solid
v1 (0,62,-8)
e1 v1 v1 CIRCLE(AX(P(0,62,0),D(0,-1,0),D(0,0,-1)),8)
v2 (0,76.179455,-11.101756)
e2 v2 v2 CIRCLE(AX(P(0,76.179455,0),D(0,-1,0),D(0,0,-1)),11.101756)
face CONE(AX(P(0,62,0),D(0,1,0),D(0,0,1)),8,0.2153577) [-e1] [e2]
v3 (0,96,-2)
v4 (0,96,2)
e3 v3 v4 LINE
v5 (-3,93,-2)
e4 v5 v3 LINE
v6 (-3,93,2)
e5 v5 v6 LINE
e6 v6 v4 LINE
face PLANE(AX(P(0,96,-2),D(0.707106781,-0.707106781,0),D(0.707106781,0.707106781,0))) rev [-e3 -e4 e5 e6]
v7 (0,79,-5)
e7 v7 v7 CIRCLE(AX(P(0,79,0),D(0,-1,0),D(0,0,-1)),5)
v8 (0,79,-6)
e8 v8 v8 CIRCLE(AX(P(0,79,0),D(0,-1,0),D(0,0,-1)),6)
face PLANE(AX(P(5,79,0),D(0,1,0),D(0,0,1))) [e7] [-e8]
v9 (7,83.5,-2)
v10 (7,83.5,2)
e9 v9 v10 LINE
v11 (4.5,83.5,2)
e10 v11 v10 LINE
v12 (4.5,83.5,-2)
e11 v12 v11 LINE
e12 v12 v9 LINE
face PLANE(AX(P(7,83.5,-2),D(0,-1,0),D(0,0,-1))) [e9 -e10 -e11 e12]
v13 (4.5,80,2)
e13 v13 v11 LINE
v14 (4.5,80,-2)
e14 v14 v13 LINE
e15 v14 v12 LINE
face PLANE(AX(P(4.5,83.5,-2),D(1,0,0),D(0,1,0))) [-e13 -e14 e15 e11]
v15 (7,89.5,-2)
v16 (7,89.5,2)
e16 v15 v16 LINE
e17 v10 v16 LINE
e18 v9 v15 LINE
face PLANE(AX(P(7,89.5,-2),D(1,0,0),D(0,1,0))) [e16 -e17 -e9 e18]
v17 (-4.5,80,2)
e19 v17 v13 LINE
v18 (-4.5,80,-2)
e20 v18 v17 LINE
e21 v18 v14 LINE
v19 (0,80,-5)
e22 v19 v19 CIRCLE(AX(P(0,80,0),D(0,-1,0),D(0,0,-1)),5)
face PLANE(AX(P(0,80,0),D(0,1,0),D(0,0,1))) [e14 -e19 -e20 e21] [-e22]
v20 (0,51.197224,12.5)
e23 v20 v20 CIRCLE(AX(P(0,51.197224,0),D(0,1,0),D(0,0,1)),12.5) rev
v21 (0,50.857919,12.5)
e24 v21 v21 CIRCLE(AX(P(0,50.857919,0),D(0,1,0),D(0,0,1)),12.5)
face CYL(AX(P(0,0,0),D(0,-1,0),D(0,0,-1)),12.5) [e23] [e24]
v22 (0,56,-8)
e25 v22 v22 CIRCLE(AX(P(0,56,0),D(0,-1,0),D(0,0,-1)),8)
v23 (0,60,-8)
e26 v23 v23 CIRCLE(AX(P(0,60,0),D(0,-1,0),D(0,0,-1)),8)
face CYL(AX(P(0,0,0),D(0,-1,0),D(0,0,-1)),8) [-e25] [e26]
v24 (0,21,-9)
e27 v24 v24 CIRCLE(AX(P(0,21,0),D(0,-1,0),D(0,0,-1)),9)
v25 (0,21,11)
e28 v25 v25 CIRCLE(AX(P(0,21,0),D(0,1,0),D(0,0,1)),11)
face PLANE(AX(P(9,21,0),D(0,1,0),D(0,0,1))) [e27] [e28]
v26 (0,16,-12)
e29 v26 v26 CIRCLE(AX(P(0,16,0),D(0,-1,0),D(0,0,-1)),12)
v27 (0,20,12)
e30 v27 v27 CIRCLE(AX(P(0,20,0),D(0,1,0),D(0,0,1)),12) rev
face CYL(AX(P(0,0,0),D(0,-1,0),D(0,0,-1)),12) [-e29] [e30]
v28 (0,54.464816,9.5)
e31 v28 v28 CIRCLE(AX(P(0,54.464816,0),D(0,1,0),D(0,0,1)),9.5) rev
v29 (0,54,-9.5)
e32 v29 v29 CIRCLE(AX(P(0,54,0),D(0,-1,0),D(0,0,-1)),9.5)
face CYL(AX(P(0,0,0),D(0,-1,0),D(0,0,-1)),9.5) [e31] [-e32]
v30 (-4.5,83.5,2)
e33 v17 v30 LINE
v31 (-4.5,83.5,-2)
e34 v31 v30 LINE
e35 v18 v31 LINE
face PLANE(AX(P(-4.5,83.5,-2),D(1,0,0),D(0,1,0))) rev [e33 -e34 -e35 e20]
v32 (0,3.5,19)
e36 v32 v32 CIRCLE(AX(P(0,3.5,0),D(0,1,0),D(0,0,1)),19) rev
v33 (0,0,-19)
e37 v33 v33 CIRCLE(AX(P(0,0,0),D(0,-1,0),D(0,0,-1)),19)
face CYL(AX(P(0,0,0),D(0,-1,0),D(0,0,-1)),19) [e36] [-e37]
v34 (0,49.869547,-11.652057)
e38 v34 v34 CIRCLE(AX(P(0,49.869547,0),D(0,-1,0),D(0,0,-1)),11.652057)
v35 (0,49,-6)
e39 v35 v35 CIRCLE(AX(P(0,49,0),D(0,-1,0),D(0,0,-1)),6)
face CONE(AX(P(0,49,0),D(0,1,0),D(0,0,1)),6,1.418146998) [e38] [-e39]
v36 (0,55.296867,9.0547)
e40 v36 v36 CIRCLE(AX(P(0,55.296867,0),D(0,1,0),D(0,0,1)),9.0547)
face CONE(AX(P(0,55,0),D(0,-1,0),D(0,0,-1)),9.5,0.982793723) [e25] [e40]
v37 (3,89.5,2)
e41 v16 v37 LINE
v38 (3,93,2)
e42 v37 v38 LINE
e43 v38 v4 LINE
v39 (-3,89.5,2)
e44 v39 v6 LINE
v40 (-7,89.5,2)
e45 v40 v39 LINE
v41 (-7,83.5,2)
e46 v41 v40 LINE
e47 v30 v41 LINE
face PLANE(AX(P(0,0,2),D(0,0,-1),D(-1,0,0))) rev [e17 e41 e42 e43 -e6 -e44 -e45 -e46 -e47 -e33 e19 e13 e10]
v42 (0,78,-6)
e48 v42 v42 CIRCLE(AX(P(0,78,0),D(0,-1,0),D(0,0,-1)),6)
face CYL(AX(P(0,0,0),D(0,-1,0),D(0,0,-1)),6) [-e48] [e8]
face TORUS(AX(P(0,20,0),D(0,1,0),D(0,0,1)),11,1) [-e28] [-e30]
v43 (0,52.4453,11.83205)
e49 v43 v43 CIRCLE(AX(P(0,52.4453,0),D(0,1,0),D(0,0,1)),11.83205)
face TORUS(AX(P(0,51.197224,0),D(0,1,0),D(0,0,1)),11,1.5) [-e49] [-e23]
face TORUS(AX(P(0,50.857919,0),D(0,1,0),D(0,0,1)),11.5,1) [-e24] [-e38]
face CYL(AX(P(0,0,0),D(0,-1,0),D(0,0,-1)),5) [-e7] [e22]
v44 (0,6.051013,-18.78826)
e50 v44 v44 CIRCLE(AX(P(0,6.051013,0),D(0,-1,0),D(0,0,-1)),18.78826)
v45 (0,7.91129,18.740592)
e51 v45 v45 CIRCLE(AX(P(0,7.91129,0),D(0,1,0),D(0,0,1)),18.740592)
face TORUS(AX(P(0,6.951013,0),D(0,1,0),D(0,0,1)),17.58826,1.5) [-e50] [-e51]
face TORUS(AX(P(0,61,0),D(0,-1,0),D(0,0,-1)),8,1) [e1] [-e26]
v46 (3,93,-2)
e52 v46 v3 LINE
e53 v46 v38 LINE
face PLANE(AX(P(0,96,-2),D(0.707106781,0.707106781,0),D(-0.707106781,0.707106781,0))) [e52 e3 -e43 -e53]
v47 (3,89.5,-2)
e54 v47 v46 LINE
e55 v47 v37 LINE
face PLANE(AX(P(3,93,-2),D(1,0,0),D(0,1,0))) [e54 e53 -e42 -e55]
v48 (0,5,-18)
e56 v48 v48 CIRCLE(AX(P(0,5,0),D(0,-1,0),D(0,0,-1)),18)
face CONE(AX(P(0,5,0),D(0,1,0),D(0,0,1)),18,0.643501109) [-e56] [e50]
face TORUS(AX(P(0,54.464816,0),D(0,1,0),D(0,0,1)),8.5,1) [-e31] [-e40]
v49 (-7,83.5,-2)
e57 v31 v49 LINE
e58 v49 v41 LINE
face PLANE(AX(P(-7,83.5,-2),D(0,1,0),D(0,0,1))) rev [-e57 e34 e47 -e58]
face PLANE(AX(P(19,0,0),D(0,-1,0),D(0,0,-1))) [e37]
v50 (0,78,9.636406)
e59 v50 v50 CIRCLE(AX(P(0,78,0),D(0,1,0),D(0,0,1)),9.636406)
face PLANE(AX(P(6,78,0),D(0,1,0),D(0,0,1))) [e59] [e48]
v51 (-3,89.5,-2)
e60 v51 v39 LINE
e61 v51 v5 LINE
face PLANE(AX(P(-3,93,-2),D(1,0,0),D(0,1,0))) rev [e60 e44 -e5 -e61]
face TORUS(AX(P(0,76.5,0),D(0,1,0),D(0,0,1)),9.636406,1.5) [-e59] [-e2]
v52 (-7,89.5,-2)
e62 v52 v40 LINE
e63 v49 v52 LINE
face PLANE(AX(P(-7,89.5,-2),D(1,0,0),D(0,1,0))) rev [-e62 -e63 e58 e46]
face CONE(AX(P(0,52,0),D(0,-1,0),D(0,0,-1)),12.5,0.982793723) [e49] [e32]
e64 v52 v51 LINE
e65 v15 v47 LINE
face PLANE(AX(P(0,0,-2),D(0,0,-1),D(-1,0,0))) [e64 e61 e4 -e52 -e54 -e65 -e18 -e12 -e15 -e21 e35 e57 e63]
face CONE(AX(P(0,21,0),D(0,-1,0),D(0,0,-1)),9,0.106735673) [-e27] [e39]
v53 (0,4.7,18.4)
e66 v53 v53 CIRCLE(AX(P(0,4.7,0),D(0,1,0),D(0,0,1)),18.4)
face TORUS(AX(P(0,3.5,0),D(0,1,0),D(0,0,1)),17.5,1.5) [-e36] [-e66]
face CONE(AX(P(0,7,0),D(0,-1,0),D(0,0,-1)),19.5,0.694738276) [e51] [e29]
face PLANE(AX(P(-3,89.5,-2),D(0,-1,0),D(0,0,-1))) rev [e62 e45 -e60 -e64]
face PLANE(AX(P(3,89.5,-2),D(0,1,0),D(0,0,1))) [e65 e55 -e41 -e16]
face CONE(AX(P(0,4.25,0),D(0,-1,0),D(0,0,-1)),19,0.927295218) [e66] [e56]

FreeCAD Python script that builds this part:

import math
import FreeCAD as App
import Part
import Sketcher
from FreeCAD import Vector
Q = App.Units.Quantity


def edges_at(feature, points):
    """Names of the edges that pass closest to the given points."""
    edges = feature.Shape.Edges
    near = lambda p: min(range(len(edges)), key=lambda i: edges[i].distToShape(Part.Vertex(*p))[0])
    return sorted({f"Edge{near(p) + 1}" for p in points})

doc = App.newDocument("Part")
body = doc.addObject("PartDesign::Body", "Body")

sketch1 = body.newObject("Sketcher::SketchObject", "Sketch")
sketch1.AttachmentSupport = (doc.getObject("XY_Plane"), [""])
sketch1.MapMode = "FlatFace"
sketch1.addGeometry(Part.LineSegment(Vector(0, 80, 0), Vector(0, 0, 0)), False)
sketch1.addGeometry(Part.LineSegment(Vector(0, 0, 0), Vector(19, 0, 0)), False)
sketch1.addGeometry(Part.LineSegment(Vector(19, 0, 0), Vector(19, 4.25, 0)), False)
sketch1.addGeometry(Part.LineSegment(Vector(19, 4.25, 0), Vector(18, 5, 0)), False)
sketch1.addGeometry(Part.LineSegment(Vector(18, 5, 0), Vector(19.5, 7, 0)), False)
sketch1.addGeometry(Part.LineSegment(Vector(19.5, 7, 0), Vector(12, 16, 0)), False)
sketch1.addGeometry(Part.LineSegment(Vector(12, 16, 0), Vector(12, 21, 0)), False)
sketch1.addGeometry(Part.LineSegment(Vector(12, 21, 0), Vector(9, 21, 0)), False)
sketch1.addGeometry(Part.LineSegment(Vector(9, 21, 0), Vector(6, 49, 0)), False)
sketch1.addGeometry(Part.LineSegment(Vector(6, 49, 0), Vector(12.5, 50, 0)), False)
sketch1.addGeometry(Part.LineSegment(Vector(12.5, 50, 0), Vector(12.5, 52, 0)), False)
sketch1.addGeometry(Part.LineSegment(Vector(12.5, 52, 0), Vector(9.5, 54, 0)), False)
sketch1.addGeometry(Part.LineSegment(Vector(9.5, 54, 0), Vector(9.5, 55, 0)), False)
sketch1.addGeometry(Part.LineSegment(Vector(9.5, 55, 0), Vector(8, 56, 0)), False)
sketch1.addGeometry(Part.LineSegment(Vector(8, 56, 0), Vector(8, 60, 0)), False)
sketch1.addGeometry(Part.ArcOfCircle(Part.Circle(Vector(8, 61, 0), Vector(0, 0, 1), 1), math.radians(-90), math.radians(90)), False)
sketch1.addGeometry(Part.LineSegment(Vector(8, 62, 0), Vector(11.5, 78, 0)), False)
sketch1.addGeometry(Part.LineSegment(Vector(11.5, 78, 0), Vector(6, 78, 0)), False)
sketch1.addGeometry(Part.LineSegment(Vector(6, 78, 0), Vector(6, 79, 0)), False)
sketch1.addGeometry(Part.LineSegment(Vector(6, 79, 0), Vector(5, 79, 0)), False)
sketch1.addGeometry(Part.LineSegment(Vector(5, 79, 0), Vector(5, 80, 0)), False)
sketch1.addGeometry(Part.LineSegment(Vector(5, 80, 0), Vector(0, 80, 0)), False)
sketch1.addConstraint(Sketcher.Constraint("Coincident", 0, 2, 1, 1))
sketch1.addConstraint(Sketcher.Constraint("Coincident", 1, 2, 2, 1))
sketch1.addConstraint(Sketcher.Constraint("Coincident", 2, 2, 3, 1))
sketch1.addConstraint(Sketcher.Constraint("Coincident", 3, 2, 4, 1))
sketch1.addConstraint(Sketcher.Constraint("Coincident", 4, 2, 5, 1))
sketch1.addConstraint(Sketcher.Constraint("Coincident", 5, 2, 6, 1))
sketch1.addConstraint(Sketcher.Constraint("Coincident", 6, 2, 7, 1))
sketch1.addConstraint(Sketcher.Constraint("Coincident", 7, 2, 8, 1))
sketch1.addConstraint(Sketcher.Constraint("Coincident", 8, 2, 9, 1))
sketch1.addConstraint(Sketcher.Constraint("Coincident", 9, 2, 10, 1))
sketch1.addConstraint(Sketcher.Constraint("Coincident", 10, 2, 11, 1))
sketch1.addConstraint(Sketcher.Constraint("Coincident", 11, 2, 12, 1))
sketch1.addConstraint(Sketcher.Constraint("Coincident", 12, 2, 13, 1))
sketch1.addConstraint(Sketcher.Constraint("Coincident", 13, 2, 14, 1))
sketch1.addConstraint(Sketcher.Constraint("Coincident", 14, 2, 15, 1))
sketch1.addConstraint(Sketcher.Constraint("Coincident", 15, 2, 16, 1))
sketch1.addConstraint(Sketcher.Constraint("Coincident", 16, 2, 17, 1))
sketch1.addConstraint(Sketcher.Constraint("Coincident", 17, 2, 18, 1))
sketch1.addConstraint(Sketcher.Constraint("Coincident", 18, 2, 19, 1))
sketch1.addConstraint(Sketcher.Constraint("Coincident", 19, 2, 20, 1))
sketch1.addConstraint(Sketcher.Constraint("Coincident", 20, 2, 21, 1))
sketch1.addConstraint(Sketcher.Constraint("Coincident", 21, 2, 0, 1))
sketch1.addConstraint(Sketcher.Constraint("Vertical", 0))
sketch1.addConstraint(Sketcher.Constraint("Horizontal", 1))
sketch1.addConstraint(Sketcher.Constraint("Vertical", 2))
sketch1.addConstraint(Sketcher.Constraint("Vertical", 6))
sketch1.addConstraint(Sketcher.Constraint("Horizontal", 7))
sketch1.addConstraint(Sketcher.Constraint("Vertical", 10))
sketch1.addConstraint(Sketcher.Constraint("Vertical", 12))
sketch1.addConstraint(Sketcher.Constraint("Vertical", 14))
sketch1.addConstraint(Sketcher.Constraint("Horizontal", 17))
sketch1.addConstraint(Sketcher.Constraint("Vertical", 18))
sketch1.addConstraint(Sketcher.Constraint("Horizontal", 19))
sketch1.addConstraint(Sketcher.Constraint("Vertical", 20))
sketch1.addConstraint(Sketcher.Constraint("Horizontal", 21))
sketch1.addConstraint(Sketcher.Constraint("Coincident", 0, 2, -1, 1))
sketch1.addConstraint(Sketcher.Constraint("Perpendicular", 3, 4))
sketch1.addConstraint(Sketcher.Constraint("Parallel", 11, 13))
sketch1.addConstraint(Sketcher.Constraint("Vertical", 15, 3, 13, 2))
sketch1.addConstraint(Sketcher.Constraint("Vertical", 14, 2, 15, 2))
sketch1.addConstraint(Sketcher.Constraint("Vertical", 8, 2, 17, 2))
sketch1.addConstraint(Sketcher.Constraint("Equal", 21, 6))
sketch1.addConstraint(Sketcher.Constraint("Equal", 19, 12))
sketch1.addConstraint(Sketcher.Constraint("Equal", 12, 18))
sketch1.addConstraint(Sketcher.Constraint("Equal", 18, 20))
sketch1.addConstraint(Sketcher.Constraint("Radius", 15, Q("1 mm")))
sketch1.addConstraint(Sketcher.Constraint("DistanceX", 1, 1, 1, 2, Q("19 mm")))
sketch1.addConstraint(Sketcher.Constraint("DistanceX", 7, 2, 7, 1, Q("3 mm")))
sketch1.addConstraint(Sketcher.Constraint("DistanceX", 19, 2, 19, 1, Q("1 mm")))
sketch1.addConstraint(Sketcher.Constraint("DistanceX", 21, 2, 21, 1, Q("5 mm")))
sketch1.addConstraint(Sketcher.Constraint("DistanceY", 0, 2, 0, 1, Q("80 mm")))
sketch1.addConstraint(Sketcher.Constraint("DistanceY", 10, 1, 10, 2, Q("2 mm")))
sketch1.addConstraint(Sketcher.Constraint("DistanceY", 14, 1, 14, 2, Q("4 mm")))
sketch1.addConstraint(Sketcher.Constraint("DistanceX", 17, 2, 17, 1, Q("5.5 mm")))
sketch1.addConstraint(Sketcher.Constraint("DistanceX", -1, 1, 15, 3, Q("8 mm")))
sketch1.addConstraint(Sketcher.Constraint("DistanceY", -1, 1, 15, 3, Q("61 mm")))
sketch1.addConstraint(Sketcher.Constraint("DistanceX", -1, 1, 3, 2, Q("18 mm")))
sketch1.addConstraint(Sketcher.Constraint("DistanceY", -1, 1, 3, 2, Q("5 mm")))
sketch1.addConstraint(Sketcher.Constraint("DistanceY", -1, 1, 4, 2, Q("7 mm")))
sketch1.addConstraint(Sketcher.Constraint("DistanceX", -1, 1, 5, 2, Q("12 mm")))
sketch1.addConstraint(Sketcher.Constraint("DistanceY", -1, 1, 5, 2, Q("16 mm")))
sketch1.addConstraint(Sketcher.Constraint("DistanceY", -1, 1, 8, 2, Q("49 mm")))
sketch1.addConstraint(Sketcher.Constraint("DistanceY", -1, 1, 9, 2, Q("50 mm")))
sketch1.addConstraint(Sketcher.Constraint("DistanceY", -1, 1, 11, 2, Q("54 mm")))
sketch1.addConstraint(Sketcher.Constraint("DistanceX", 11, 2, 10, 2, Q("3 mm")))
sketch1.addConstraint(Sketcher.Constraint("Distance", 4, Q("2.5 mm")))
revolution = body.newObject("PartDesign::Revolution", "Revolution")
revolution.Profile = sketch1
revolution.ReferenceAxis = (sketch1, ["V_Axis"])
revolution.Angle = 360

sketch2 = body.newObject("Sketcher::SketchObject", "Sketch001")
sketch2.AttachmentSupport = (doc.getObject("XY_Plane"), [""])
sketch2.MapMode = "FlatFace"
sketch2.addGeometry(Part.LineSegment(Vector(0, 96, 0), Vector(0, 80, 0)), False)
sketch2.addGeometry(Part.LineSegment(Vector(0, 80, 0), Vector(4.5, 80, 0)), False)
sketch2.addGeometry(Part.LineSegment(Vector(4.5, 80, 0), Vector(4.5, 83.5, 0)), False)
sketch2.addGeometry(Part.LineSegment(Vector(4.5, 83.5, 0), Vector(7, 83.5, 0)), False)
sketch2.addGeometry(Part.LineSegment(Vector(7, 83.5, 0), Vector(7, 89.5, 0)), False)
sketch2.addGeometry(Part.LineSegment(Vector(7, 89.5, 0), Vector(3, 89.5, 0)), False)
sketch2.addGeometry(Part.LineSegment(Vector(3, 89.5, 0), Vector(3, 93, 0)), False)
sketch2.addGeometry(Part.LineSegment(Vector(3, 93, 0), Vector(0, 96, 0)), False)
sketch2.addConstraint(Sketcher.Constraint("Coincident", 0, 2, 1, 1))
sketch2.addConstraint(Sketcher.Constraint("Coincident", 1, 2, 2, 1))
sketch2.addConstraint(Sketcher.Constraint("Coincident", 2, 2, 3, 1))
sketch2.addConstraint(Sketcher.Constraint("Coincident", 3, 2, 4, 1))
sketch2.addConstraint(Sketcher.Constraint("Coincident", 4, 2, 5, 1))
sketch2.addConstraint(Sketcher.Constraint("Coincident", 5, 2, 6, 1))
sketch2.addConstraint(Sketcher.Constraint("Coincident", 6, 2, 7, 1))
sketch2.addConstraint(Sketcher.Constraint("Coincident", 7, 2, 0, 1))
sketch2.addConstraint(Sketcher.Constraint("Vertical", 0))
sketch2.addConstraint(Sketcher.Constraint("Horizontal", 1))
sketch2.addConstraint(Sketcher.Constraint("Vertical", 2))
sketch2.addConstraint(Sketcher.Constraint("Horizontal", 3))
sketch2.addConstraint(Sketcher.Constraint("Vertical", 4))
sketch2.addConstraint(Sketcher.Constraint("Horizontal", 5))
sketch2.addConstraint(Sketcher.Constraint("Vertical", 6))
sketch2.addConstraint(Sketcher.Constraint("PointOnObject", 0, 2, -2))
sketch2.addConstraint(Sketcher.Constraint("Equal", 2, 6))
sketch2.addConstraint(Sketcher.Constraint("DistanceX", 5, 2, 5, 1, Q("4 mm")))
sketch2.addConstraint(Sketcher.Constraint("DistanceY", 0, 2, 0, 1, Q("16 mm")))
sketch2.addConstraint(Sketcher.Constraint("DistanceY", 4, 1, 4, 2, Q("6 mm")))
sketch2.addConstraint(Sketcher.Constraint("Angle", 7, Q("135 deg")))
sketch2.addConstraint(Sketcher.Constraint("DistanceX", 1, 1, 1, 2, Q("4.5 mm")))
sketch2.addConstraint(Sketcher.Constraint("DistanceX", 3, 1, 3, 2, Q("2.5 mm")))
sketch2.addConstraint(Sketcher.Constraint("DistanceY", -1, 1, 0, 2, Q("80 mm")))
pad1 = body.newObject("PartDesign::Pad", "Pad")
pad1.Profile = sketch2
pad1.Length = 4
pad1.Midplane = True
doc.recompute()

mirrored = body.newObject("PartDesign::Mirrored", "Mirrored")
mirrored.Originals = [pad1]
mirrored.MirrorPlane = (doc.getObject("YZ_Plane"), [""])
body.Tip = mirrored
doc.recompute()

fillet = body.newObject("PartDesign::Fillet", "Fillet")
fillet.Base = (mirrored, edges_at(mirrored, [
    (0, 78, 11.5),
    (0, 52, 12.5),
    (0, 7, 19.5),
    (0, 4.25, 19),
]))
fillet.Radius = 1.5
doc.recompute()

fillet2 = body.newObject("PartDesign::Fillet", "Fillet001")
fillet2.Base = (fillet, edges_at(fillet, [(0, 55, 9.5), (0, 50, 12.5), (0, 21, 12)]))
fillet2.Radius = 1

doc.recompute()
